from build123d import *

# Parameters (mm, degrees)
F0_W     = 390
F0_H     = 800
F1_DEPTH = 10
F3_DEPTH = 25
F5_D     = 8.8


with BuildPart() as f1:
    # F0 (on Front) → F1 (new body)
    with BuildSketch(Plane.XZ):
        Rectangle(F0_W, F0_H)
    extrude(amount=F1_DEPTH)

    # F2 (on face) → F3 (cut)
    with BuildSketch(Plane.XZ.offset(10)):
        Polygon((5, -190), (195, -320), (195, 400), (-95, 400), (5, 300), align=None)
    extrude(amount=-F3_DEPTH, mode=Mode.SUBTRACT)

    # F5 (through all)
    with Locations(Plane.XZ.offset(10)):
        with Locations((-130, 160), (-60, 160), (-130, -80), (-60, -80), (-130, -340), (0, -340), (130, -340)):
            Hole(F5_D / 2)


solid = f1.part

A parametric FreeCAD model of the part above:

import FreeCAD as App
import Part
import Sketcher
Q = App.Units.Quantity

doc = App.newDocument("Part")
params = doc.addObject("Spreadsheet::Sheet", "Params")
for row, (alias, value) in enumerate([
    ("sketch1_width", "390 mm"),
    ("sketch1_height", "800 mm"),
    ("pad1_length", "10 mm"),
    ("sketch2_width", "290 mm"),
    ("sketch2_height", "720 mm"),
    ("sketch2_height2", "490 mm"),
    ("pocket1_length", "25 mm"),
    ("sketch3_diameter", "8.8 mm"),
    ("hole_diameter", "8.8 mm"),
], start=1):
    params.set(f"A{row}", alias)
    params.set(f"B{row}", "=" + value)
    params.setAlias(f"B{row}", alias)

body = doc.addObject("PartDesign::Body", "Body")

# Sketch on XZ plane
sketch1 = body.newObject("Sketcher::SketchObject", "Sketch")
sketch1.AttachmentSupport = (doc.getObject("XZ_Plane"), [""])
sketch1.MapMode = "FlatFace"
sketch1.addGeometry([
    Part.LineSegment(App.Vector(-195, 400, 0), App.Vector(-195, -400, 0)),
    Part.LineSegment(App.Vector(-195, -400, 0), App.Vector(195, -400, 0)),
    Part.LineSegment(App.Vector(195, -400, 0), App.Vector(195, 400, 0)),
    Part.LineSegment(App.Vector(195, 400, 0), App.Vector(-195, 400, 0)),
], False)
sketch1.addConstraint([
    Sketcher.Constraint("Coincident", 0, 2, 1, 1),
    Sketcher.Constraint("Coincident", 1, 2, 2, 1),
    Sketcher.Constraint("Coincident", 2, 2, 3, 1),
    Sketcher.Constraint("Coincident", 3, 2, 0, 1),
    Sketcher.Constraint("Vertical", 0),
    Sketcher.Constraint("Horizontal", 1),
    Sketcher.Constraint("Vertical", 2),
    Sketcher.Constraint("Horizontal", 3),
    Sketcher.Constraint("Symmetric", 0, 2, 2, 2, -1, 1),
    Sketcher.Constraint("DistanceX", 1, 1, 1, 2, 390.0),
    Sketcher.Constraint("DistanceY", 0, 2, 0, 1, 800.0),
])
sketch1.setExpression("Constraints[9]", "Params.sketch1_width")
sketch1.setExpression("Constraints[10]", "Params.sketch1_height")
pad1 = body.newObject("PartDesign::Pad", "Pad")
pad1.Profile = sketch1
pad1.setExpression("Length", "Params.pad1_length")

# Sketch on XZ plane
sketch2 = body.newObject("Sketcher::SketchObject", "Sketch001")
sketch2.AttachmentSupport = (doc.getObject("XZ_Plane"), [""])
sketch2.MapMode = "FlatFace"
sketch2.AttachmentOffset = App.Placement(App.Vector(0, 0, 10), App.Rotation())
sketch2.addGeometry([
    Part.LineSegment(App.Vector(5, -190, 0), App.Vector(195, -320, 0)),  # 0
    Part.LineSegment(App.Vector(195, -320, 0), App.Vector(195, 400, 0)),  # 1
    Part.LineSegment(App.Vector(195, 400, 0), App.Vector(-95, 400, 0)),  # 2
    Part.LineSegment(App.Vector(-95, 400, 0), App.Vector(5, 300, 0)),  # 3
    Part.LineSegment(App.Vector(5, 300, 0), App.Vector(5, -190, 0)),  # 4
], False)
sketch2.addConstraint([
    Sketcher.Constraint("Coincident", 0, 2, 1, 1),
    Sketcher.Constraint("Coincident", 1, 2, 2, 1),
    Sketcher.Constraint("Coincident", 2, 2, 3, 1),
    Sketcher.Constraint("Coincident", 3, 2, 4, 1),
    Sketcher.Constraint("Coincident", 4, 2, 0, 1),
    Sketcher.Constraint("Vertical", 1),
    Sketcher.Constraint("Horizontal", 2),
    Sketcher.Constraint("Vertical", 4),
    Sketcher.Constraint("DistanceX", 2, 2, 2, 1, 290.0),
    Sketcher.Constraint("DistanceY", 1, 1, 1, 2, 720.0),
    Sketcher.Constraint("DistanceY", 4, 2, 4, 1, 490.0),
    Sketcher.Constraint("Angle", 3, Q("-45 deg")),
    Sketcher.Constraint("DistanceX", -1, 1, 0, 2, 195.0),
    Sketcher.Constraint("DistanceY", 0, 2, -1, 1, 320.0),
    Sketcher.Constraint("DistanceX", -1, 1, 3, 2, 5.0),
])
sketch2.setExpression("Constraints[8]", "Params.sketch2_width")
sketch2.setExpression("Constraints[9]", "Params.sketch2_height")
sketch2.setExpression("Constraints[10]", "Params.sketch2_height2")
pocket1 = body.newObject("PartDesign::Pocket", "Pocket")
pocket1.Profile = sketch2
pocket1.setExpression("Length", "Params.pocket1_length")

# Sketch on XZ plane
sketch3 = body.newObject("Sketcher::SketchObject", "Sketch002")
sketch3.AttachmentSupport = (doc.getObject("XZ_Plane"), [""])
sketch3.MapMode = "FlatFace"
sketch3.AttachmentOffset = App.Placement(App.Vector(0, 0, 10), App.Rotation())
sketch3.addGeometry([
    Part.Circle(App.Vector(-130, 160, 0), App.Vector(0, 0, 1), 4.4),  # 0
    Part.Circle(App.Vector(-60, 160, 0), App.Vector(0, 0, 1), 4.4),  # 1
    Part.Circle(App.Vector(-130, -80, 0), App.Vector(0, 0, 1), 4.4),  # 2
    Part.Circle(App.Vector(-60, -80, 0), App.Vector(0, 0, 1), 4.4),  # 3
    Part.Circle(App.Vector(-130, -340, 0), App.Vector(0, 0, 1), 4.4),  # 4
    Part.Circle(App.Vector(0, -340, 0), App.Vector(0, 0, 1), 4.4),  # 5
    Part.Circle(App.Vector(130, -340, 0), App.Vector(0, 0, 1), 4.4),  # 6
], False)
sketch3.addConstraint([
    Sketcher.Constraint("Equal", 0, 1),
    Sketcher.Constraint("Equal", 1, 2),
    Sketcher.Constraint("Equal", 2, 3),
    Sketcher.Constraint("Equal", 3, 4),
    Sketcher.Constraint("Equal", 4, 5),
    Sketcher.Constraint("Equal", 5, 6),
    Sketcher.Constraint("Symmetric", 4, 3, 6, 3, -2),
    Sketcher.Constraint("PointOnObject", 5, 3, -2),
    Sketcher.Constraint("Horizontal", 0, 3, 1, 3),
    Sketcher.Constraint("Horizontal", 2, 3, 3, 3),
    Sketcher.Constraint("Horizontal", 4, 3, 5, 3),
    Sketcher.Constraint("Vertical", 0, 3, 2, 3),
    Sketcher.Constraint("Vertical", 1, 3, 3, 3),
    Sketcher.Constraint("Vertical", 2, 3, 4, 3),
    Sketcher.Constraint("Diameter", 0, 8.8),
    Sketcher.Constraint("DistanceX", 0, 3, -1, 1, 130.0),
    Sketcher.Constraint("DistanceY", -1, 1, 0, 3, 160.0),
    Sketcher.Constraint("DistanceX", 1, 3, -1, 1, 60.0),
    Sketcher.Constraint("DistanceY", 2, 3, -1, 1, 80.0),
    Sketcher.Constraint("DistanceY", 4, 3, -1, 1, 340.0),
])
sketch3.setExpression("Constraints[14]", "Params.sketch3_diameter")
doc.recompute()
hole = body.newObject("PartDesign::Hole", "Hole")
hole.Profile = sketch3
hole.ThreadType = "None"
hole.setExpression("Diameter", "Params.hole_diameter")
hole.DepthType = "ThroughAll"

doc.recompute()
